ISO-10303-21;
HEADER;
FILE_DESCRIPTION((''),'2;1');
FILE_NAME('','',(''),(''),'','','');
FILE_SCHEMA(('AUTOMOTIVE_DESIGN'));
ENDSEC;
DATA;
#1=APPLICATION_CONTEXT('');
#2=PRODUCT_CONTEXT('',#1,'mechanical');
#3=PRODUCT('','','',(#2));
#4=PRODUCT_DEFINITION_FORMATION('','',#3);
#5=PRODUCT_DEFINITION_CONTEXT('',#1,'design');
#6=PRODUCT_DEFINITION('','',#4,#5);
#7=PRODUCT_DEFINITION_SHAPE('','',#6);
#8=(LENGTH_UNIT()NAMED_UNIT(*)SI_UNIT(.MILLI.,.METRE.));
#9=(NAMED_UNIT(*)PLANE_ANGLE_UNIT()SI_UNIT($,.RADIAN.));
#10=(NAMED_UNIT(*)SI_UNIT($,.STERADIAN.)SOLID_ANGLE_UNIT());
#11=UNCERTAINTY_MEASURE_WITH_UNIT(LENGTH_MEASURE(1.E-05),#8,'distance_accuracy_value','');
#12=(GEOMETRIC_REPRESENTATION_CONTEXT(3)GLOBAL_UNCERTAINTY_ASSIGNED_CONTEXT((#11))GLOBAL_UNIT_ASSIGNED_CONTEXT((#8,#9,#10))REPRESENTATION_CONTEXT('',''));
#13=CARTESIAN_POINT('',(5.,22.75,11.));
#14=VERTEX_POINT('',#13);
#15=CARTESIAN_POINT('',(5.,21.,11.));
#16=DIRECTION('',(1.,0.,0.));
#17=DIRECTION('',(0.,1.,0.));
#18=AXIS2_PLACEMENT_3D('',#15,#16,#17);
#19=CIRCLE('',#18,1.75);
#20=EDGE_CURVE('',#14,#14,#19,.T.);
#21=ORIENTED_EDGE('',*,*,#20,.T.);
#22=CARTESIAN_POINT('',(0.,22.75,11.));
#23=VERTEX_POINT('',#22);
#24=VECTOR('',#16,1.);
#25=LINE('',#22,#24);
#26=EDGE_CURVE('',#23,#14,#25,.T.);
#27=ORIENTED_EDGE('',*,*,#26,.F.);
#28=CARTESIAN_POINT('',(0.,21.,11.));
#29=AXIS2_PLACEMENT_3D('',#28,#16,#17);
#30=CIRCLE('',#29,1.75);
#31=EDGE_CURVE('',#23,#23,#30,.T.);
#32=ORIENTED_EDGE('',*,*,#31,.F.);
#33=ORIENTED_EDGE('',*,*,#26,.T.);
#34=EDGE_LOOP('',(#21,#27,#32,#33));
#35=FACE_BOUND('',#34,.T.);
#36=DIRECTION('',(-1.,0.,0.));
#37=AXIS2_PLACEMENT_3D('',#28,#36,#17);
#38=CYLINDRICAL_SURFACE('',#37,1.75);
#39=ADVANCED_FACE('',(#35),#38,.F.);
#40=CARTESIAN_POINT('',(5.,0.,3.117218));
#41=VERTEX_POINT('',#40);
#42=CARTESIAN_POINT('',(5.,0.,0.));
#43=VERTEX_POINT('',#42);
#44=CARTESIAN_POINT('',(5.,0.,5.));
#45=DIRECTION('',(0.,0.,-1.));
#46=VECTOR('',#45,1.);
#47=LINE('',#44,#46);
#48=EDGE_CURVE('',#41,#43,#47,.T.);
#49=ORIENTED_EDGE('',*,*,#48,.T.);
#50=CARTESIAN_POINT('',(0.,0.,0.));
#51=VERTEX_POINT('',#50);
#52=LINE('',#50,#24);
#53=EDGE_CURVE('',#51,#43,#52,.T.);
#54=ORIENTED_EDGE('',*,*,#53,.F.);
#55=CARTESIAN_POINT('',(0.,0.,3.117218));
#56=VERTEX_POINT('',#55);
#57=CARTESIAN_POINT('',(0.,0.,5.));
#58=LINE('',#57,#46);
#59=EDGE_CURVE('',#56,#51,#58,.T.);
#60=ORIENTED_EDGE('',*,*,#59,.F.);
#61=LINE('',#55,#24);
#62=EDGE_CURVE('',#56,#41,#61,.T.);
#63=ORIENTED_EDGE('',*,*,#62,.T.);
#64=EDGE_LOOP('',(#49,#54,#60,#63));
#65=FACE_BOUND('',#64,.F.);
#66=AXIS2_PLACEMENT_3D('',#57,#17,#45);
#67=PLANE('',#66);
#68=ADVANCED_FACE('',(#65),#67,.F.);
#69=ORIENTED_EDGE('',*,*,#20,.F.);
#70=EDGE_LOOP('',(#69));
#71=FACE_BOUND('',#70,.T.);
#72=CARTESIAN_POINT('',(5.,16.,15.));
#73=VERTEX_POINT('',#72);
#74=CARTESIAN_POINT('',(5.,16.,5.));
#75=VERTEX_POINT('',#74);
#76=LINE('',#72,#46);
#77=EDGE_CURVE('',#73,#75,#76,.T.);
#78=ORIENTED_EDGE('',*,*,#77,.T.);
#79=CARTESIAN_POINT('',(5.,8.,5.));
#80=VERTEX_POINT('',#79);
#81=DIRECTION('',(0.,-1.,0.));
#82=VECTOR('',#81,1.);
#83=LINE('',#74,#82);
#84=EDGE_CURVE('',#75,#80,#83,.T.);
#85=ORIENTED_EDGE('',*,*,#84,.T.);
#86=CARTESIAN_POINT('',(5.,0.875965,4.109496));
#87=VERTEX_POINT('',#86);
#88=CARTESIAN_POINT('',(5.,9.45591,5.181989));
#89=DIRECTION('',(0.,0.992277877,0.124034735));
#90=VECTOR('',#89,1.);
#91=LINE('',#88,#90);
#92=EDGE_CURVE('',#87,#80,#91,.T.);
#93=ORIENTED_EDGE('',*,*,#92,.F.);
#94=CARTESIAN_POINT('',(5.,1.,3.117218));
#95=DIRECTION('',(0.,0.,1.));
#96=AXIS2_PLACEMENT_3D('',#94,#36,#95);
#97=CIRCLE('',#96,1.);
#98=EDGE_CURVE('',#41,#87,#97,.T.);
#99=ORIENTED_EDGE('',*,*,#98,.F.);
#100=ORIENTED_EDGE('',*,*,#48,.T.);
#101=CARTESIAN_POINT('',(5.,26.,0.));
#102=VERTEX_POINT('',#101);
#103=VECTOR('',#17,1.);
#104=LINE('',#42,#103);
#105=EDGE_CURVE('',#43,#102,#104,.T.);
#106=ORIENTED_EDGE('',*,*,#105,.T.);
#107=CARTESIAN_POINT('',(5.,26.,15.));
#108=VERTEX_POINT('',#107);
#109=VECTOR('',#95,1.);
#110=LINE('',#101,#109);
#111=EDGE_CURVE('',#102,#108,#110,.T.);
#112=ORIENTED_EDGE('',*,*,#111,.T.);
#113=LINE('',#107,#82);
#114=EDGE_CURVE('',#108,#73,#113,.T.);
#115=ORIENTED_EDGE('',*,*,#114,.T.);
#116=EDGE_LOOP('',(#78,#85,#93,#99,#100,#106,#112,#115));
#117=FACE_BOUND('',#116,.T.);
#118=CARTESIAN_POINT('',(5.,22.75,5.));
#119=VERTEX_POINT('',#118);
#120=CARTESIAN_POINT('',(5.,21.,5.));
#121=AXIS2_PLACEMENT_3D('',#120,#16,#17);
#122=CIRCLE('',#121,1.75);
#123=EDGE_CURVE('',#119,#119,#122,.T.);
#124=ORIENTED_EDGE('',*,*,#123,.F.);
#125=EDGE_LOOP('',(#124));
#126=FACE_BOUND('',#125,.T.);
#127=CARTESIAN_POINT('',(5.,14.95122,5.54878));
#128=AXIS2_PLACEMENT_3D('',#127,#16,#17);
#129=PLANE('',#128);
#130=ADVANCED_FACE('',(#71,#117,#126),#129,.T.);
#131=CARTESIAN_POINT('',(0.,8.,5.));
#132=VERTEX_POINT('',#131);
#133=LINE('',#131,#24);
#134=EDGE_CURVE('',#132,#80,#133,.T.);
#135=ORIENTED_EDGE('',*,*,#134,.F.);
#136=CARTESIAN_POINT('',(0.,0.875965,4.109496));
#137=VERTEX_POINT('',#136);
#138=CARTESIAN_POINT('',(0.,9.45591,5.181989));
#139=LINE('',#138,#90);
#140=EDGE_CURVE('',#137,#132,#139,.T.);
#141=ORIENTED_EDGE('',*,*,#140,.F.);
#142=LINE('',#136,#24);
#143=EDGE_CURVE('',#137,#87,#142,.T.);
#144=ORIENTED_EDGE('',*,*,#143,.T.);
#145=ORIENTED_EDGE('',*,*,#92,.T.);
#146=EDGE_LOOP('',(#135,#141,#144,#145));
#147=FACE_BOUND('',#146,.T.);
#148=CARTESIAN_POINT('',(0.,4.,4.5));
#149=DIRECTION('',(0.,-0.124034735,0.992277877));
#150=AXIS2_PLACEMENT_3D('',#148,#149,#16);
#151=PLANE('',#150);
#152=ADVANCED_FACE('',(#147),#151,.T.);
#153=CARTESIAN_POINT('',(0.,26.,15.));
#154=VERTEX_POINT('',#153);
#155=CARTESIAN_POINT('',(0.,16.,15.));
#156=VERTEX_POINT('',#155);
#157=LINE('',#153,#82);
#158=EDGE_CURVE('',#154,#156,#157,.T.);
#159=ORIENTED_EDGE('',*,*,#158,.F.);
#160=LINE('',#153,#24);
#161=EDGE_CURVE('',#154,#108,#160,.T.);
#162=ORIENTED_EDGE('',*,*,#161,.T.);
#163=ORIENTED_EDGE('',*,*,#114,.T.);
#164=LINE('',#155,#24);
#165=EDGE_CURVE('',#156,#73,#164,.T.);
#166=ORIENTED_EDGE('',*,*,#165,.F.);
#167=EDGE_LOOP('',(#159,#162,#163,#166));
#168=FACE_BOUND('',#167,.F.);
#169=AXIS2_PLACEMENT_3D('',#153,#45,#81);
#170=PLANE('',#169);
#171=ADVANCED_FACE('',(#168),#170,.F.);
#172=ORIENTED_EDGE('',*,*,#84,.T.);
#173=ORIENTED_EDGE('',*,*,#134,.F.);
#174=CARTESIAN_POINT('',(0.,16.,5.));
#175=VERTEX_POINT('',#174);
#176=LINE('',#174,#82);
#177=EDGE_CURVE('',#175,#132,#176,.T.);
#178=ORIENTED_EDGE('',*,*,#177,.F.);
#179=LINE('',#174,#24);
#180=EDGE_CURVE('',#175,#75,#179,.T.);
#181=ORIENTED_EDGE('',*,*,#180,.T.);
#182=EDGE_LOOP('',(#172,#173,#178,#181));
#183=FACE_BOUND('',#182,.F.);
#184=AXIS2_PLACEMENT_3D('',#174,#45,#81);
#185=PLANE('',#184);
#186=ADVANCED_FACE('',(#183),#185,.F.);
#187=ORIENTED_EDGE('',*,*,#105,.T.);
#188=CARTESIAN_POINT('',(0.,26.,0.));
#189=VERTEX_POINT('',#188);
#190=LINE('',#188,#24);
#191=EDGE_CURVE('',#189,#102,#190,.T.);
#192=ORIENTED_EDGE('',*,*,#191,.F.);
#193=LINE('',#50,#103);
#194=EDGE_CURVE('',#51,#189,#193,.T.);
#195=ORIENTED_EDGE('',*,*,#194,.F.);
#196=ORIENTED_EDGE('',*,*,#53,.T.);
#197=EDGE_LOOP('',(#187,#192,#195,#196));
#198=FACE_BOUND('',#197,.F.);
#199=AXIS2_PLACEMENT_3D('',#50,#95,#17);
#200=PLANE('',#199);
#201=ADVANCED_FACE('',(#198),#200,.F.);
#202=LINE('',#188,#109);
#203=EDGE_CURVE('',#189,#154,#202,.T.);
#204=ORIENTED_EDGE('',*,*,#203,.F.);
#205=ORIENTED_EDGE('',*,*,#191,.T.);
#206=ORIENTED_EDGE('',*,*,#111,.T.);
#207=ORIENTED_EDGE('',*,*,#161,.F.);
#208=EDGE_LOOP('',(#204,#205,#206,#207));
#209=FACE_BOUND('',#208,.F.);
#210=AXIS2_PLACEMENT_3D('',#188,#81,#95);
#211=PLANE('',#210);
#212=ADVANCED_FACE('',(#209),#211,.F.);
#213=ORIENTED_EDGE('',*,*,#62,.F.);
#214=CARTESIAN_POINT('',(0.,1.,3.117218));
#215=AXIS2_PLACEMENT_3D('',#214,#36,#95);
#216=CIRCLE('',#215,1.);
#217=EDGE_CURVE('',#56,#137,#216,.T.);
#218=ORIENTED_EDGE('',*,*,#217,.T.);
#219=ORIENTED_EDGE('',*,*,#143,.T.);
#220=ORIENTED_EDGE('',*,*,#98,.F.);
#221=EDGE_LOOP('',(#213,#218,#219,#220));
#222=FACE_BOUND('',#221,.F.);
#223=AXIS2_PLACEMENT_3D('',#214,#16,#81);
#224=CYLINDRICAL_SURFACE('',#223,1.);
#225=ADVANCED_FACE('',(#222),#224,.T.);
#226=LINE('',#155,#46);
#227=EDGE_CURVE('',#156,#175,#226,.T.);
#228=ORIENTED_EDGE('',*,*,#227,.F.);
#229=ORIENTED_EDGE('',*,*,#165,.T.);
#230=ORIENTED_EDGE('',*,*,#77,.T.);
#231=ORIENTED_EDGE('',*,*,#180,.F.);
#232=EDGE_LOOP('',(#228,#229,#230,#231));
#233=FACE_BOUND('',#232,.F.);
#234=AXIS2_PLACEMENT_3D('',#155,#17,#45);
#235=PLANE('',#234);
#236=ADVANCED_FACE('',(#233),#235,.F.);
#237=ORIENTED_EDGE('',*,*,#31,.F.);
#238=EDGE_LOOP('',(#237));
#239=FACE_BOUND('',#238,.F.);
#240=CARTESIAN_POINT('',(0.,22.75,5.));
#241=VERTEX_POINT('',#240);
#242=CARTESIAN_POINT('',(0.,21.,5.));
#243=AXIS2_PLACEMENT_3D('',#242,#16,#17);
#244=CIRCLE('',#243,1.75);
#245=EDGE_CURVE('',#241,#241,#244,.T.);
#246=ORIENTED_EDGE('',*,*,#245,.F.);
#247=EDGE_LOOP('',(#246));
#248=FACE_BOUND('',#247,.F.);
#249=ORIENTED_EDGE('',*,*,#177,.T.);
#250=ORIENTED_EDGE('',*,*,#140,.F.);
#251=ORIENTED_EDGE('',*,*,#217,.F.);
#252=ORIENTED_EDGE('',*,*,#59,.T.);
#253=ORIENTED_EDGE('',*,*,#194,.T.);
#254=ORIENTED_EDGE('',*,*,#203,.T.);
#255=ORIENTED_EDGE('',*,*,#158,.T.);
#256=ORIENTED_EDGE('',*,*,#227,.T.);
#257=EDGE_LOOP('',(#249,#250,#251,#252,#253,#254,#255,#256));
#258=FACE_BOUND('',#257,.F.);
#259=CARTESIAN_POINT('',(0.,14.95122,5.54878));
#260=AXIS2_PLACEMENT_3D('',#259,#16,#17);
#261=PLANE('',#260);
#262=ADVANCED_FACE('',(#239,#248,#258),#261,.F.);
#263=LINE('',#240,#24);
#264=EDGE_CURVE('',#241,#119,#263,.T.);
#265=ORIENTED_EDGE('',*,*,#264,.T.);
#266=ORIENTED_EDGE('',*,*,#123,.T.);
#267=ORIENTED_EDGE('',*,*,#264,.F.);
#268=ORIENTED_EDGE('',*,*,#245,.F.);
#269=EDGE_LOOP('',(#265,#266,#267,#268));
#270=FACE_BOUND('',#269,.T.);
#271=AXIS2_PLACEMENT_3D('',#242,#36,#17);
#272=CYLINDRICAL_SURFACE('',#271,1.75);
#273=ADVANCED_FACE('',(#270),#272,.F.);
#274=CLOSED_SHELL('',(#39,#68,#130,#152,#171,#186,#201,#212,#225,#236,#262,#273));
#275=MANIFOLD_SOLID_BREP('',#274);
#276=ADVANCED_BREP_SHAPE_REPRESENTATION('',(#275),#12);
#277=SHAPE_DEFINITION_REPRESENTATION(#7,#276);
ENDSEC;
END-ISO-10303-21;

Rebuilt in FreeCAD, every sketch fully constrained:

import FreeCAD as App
import Part
import Sketcher

V = App.Vector


def edges_at(feature, points):
    """Names of the edges that pass closest to the given points."""
    edges = feature.Shape.Edges
    near = lambda p: min(range(len(edges)), key=lambda i: edges[i].distToShape(Part.Vertex(*p))[0])
    return sorted({f"Edge{near(p) + 1}" for p in points})


def add_polygon(sketch, points):
    """Adds a closed chain of lines whose ends are joined by coincident constraints."""
    first, n = sketch.GeometryCount, len(points)
    for a, b in zip(points, points[1:] + points[:1]):
        sketch.addGeometry(Part.LineSegment(App.Vector(*a, 0), App.Vector(*b, 0)), False)
    for i in range(n):
        sketch.addConstraint(Sketcher.Constraint("Coincident", first + i, 2, first + (i + 1) % n, 1))

doc = App.newDocument("Part")
body = doc.addObject("PartDesign::Body", "Body")

# Sketch on YZ plane
sketch1 = body.newObject("Sketcher::SketchObject", "Sketch")
sketch1.AttachmentSupport = (doc.getObject("YZ_Plane"), [""])
sketch1.MapMode = "FlatFace"
add_polygon(sketch1, [(0, 5), (0, 0), (26, 0), (26, 15), (16, 15), (16, 5)])  # lines 0-5
sketch1.addGeometry(Part.Circle(V(21, 5, 0), V(0, 0, 1), 1.8), False)  # 6
sketch1.addGeometry(Part.Circle(V(21, 11, 0), V(0, 0, 1), 1.8), False)  # 7
sketch1.addConstraint([
    Sketcher.Constraint("Vertical", 0),
    Sketcher.Constraint("Horizontal", 1),
    Sketcher.Constraint("Vertical", 2),
    Sketcher.Constraint("Horizontal", 3),
    Sketcher.Constraint("Vertical", 4),
    Sketcher.Constraint("Horizontal", 5),
    Sketcher.Constraint("Coincident", 0, 2, -1, 1),
    Sketcher.Constraint("Equal", 6, 7),
    Sketcher.Constraint("Horizontal", 6, 3, 4, 2),
    Sketcher.Constraint("Vertical", 6, 3, 7, 3),
    Sketcher.Constraint("Equal", 3, 4),
    Sketcher.Constraint("Diameter", 6, 3.5),
    Sketcher.Constraint("DistanceX", 1, 1, 1, 2, 26.0),
    Sketcher.Constraint("DistanceX", 3, 2, 3, 1, 10.0),
    Sketcher.Constraint("DistanceY", 0, 2, 0, 1, 5.0),
    Sketcher.Constraint("DistanceX", -1, 1, 6, 3, 21.0),
    Sketcher.Constraint("DistanceY", -1, 1, 7, 3, 11.0),
])
pad1 = body.newObject("PartDesign::Pad", "Pad")
pad1.Profile = sketch1
pad1.Length = 5
doc.recompute()

chamfer = body.newObject("PartDesign::Chamfer", "Chamfer")
chamfer.Base = (pad1, edges_at(pad1, [(2.5, 0, 5)]))
chamfer.ChamferType = "Two distances"
chamfer.Size = 1
chamfer.Size2 = 8
doc.recompute()

fillet = body.newObject("PartDesign::Fillet", "Fillet")
fillet.Base = (chamfer, edges_at(chamfer, [(2.5, 0, 4)]))
fillet.Radius = 1

doc.recompute()
